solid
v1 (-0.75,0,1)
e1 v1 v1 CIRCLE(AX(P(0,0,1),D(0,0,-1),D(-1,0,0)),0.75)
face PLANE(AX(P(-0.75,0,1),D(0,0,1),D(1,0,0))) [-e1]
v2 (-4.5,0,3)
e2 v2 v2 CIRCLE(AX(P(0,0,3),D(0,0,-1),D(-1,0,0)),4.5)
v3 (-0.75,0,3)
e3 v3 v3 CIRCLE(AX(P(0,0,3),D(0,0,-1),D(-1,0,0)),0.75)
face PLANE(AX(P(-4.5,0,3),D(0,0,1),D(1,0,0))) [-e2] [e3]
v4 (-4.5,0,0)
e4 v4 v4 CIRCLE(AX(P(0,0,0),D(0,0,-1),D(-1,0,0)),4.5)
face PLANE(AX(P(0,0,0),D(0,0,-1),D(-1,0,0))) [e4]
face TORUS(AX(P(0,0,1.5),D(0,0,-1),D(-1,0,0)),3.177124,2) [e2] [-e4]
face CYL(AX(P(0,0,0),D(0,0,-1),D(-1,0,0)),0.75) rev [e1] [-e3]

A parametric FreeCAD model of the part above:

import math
import FreeCAD as App
import Part
import Sketcher
from FreeCAD import Vector

doc = App.newDocument("Part")
body = doc.addObject("PartDesign::Body", "Body")

sketch1 = body.newObject("Sketcher::SketchObject", "Sketch")
sketch1.AttachmentSupport = (doc.getObject("XZ_Plane"), [""])
sketch1.MapMode = "FlatFace"
sketch1.addGeometry(Part.LineSegment(Vector(-4.5, 3, 0), Vector(-0.8, 3, 0)), False)
sketch1.addGeometry(Part.LineSegment(Vector(-0.8, 3, 0), Vector(-0.8, 1, 0)), False)
sketch1.addGeometry(Part.LineSegment(Vector(-0.8, 1, 0), Vector(0, 1, 0)), False)
sketch1.addGeometry(Part.LineSegment(Vector(0, 1, 0), Vector(0, 0, 0)), False)
sketch1.addGeometry(Part.LineSegment(Vector(0, 0, 0), Vector(-4.5, 0, 0)), False)
sketch1.addGeometry(Part.ArcOfCircle(Part.Circle(Vector(-3.2, 1.5, 0), Vector(0, 0, 1), 2), math.radians(131), math.radians(229)), False)
sketch1.addConstraint(Sketcher.Constraint("Coincident", 0, 2, 1, 1))
sketch1.addConstraint(Sketcher.Constraint("Coincident", 1, 2, 2, 1))
sketch1.addConstraint(Sketcher.Constraint("Coincident", 2, 2, 3, 1))
sketch1.addConstraint(Sketcher.Constraint("Coincident", 3, 2, 4, 1))
sketch1.addConstraint(Sketcher.Constraint("Coincident", 4, 2, 5, 2))
sketch1.addConstraint(Sketcher.Constraint("Coincident", 5, 1, 0, 1))
sketch1.addConstraint(Sketcher.Constraint("Horizontal", 0))
sketch1.addConstraint(Sketcher.Constraint("Vertical", 1))
sketch1.addConstraint(Sketcher.Constraint("Horizontal", 2))
sketch1.addConstraint(Sketcher.Constraint("Vertical", 3))
sketch1.addConstraint(Sketcher.Constraint("Horizontal", 4))
sketch1.addConstraint(Sketcher.Constraint("Coincident", 3, 2, -1, 1))
sketch1.addConstraint(Sketcher.Constraint("Vertical", 4, 2, 5, 1))
sketch1.addConstraint(Sketcher.Constraint("Radius", 5, 2.0))
sketch1.addConstraint(Sketcher.Constraint("DistanceY", 1, 2, 1, 1, 2.0))
sketch1.addConstraint(Sketcher.Constraint("DistanceY", 3, 2, 3, 1, 1.0))
sketch1.addConstraint(Sketcher.Constraint("DistanceX", 4, 2, 4, 1, 4.5))
sketch1.addConstraint(Sketcher.Constraint("DistanceX", 0, 1, 0, 2, 3.75))
revolution = body.newObject("PartDesign::Revolution", "Revolution")
revolution.Profile = sketch1
revolution.ReferenceAxis = (sketch1, ["V_Axis"])
revolution.Angle = 360

doc.recompute()
